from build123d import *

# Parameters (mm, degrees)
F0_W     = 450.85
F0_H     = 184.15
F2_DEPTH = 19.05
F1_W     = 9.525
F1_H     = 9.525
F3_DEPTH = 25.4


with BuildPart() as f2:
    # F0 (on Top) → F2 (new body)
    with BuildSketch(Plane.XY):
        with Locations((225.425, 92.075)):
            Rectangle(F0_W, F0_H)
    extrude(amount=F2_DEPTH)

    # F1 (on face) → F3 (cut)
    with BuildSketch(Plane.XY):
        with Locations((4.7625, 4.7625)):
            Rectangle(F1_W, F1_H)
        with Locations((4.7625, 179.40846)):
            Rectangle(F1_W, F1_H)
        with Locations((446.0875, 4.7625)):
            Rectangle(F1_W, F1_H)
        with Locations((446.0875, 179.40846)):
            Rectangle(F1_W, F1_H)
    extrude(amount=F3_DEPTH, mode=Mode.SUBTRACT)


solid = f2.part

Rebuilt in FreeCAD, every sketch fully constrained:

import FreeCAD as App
import Part
import Sketcher

V = App.Vector
Q = App.Units.Quantity

doc = App.newDocument("Part")
body = doc.addObject("PartDesign::Body", "Body")

# Sketch on XY plane
sketch1 = doc.addObject("Sketcher::SketchObject", "Sketch")
body.addObject(sketch1)
sketch1.AttachmentSupport = (doc.XY_Plane, [""])
sketch1.MapMode = "FlatFace"
sketch1.addGeometry([
    Part.LineSegment(V(0, 184.15, 0), V(0, 0, 0)),
    Part.LineSegment(V(0, 0, 0), V(450.85, 0, 0)),
    Part.LineSegment(V(450.85, 0, 0), V(450.85, 184.15, 0)),
    Part.LineSegment(V(450.85, 184.15, 0), V(0, 184.15, 0)),
], False)
sketch1.addConstraint([
    Sketcher.Constraint("Coincident", 0, 2, 1, 1),
    Sketcher.Constraint("Coincident", 1, 2, 2, 1),
    Sketcher.Constraint("Coincident", 2, 2, 3, 1),
    Sketcher.Constraint("Coincident", 3, 2, 0, 1),
    Sketcher.Constraint("Vertical", 0),
    Sketcher.Constraint("Horizontal", 1),
    Sketcher.Constraint("Vertical", 2),
    Sketcher.Constraint("Horizontal", 3),
    Sketcher.Constraint("Coincident", 0, 2, -1, 1),
    Sketcher.Constraint("DistanceX", 1, 1, 1, 2, Q("17.75 in")),
    Sketcher.Constraint("DistanceY", 0, 2, 0, 1, Q("7.25 in")),
])
pad1 = doc.addObject("PartDesign::Pad", "Pad")
body.addObject(pad1)
pad1.Profile = sketch1
pad1.Length = Q("0.75 in")

# Sketch on XY plane
sketch2 = doc.addObject("Sketcher::SketchObject", "Sketch001")
body.addObject(sketch2)
sketch2.AttachmentSupport = (doc.XY_Plane, [""])
sketch2.MapMode = "FlatFace"
sketch2.addGeometry([
    Part.LineSegment(V(0, 9.525, 0), V(0, 0, 0)),  # 0
    Part.LineSegment(V(0, 0, 0), V(9.525, 0, 0)),  # 1
    Part.LineSegment(V(9.525, 0, 0), V(9.525, 9.525, 0)),  # 2
    Part.LineSegment(V(9.525, 9.525, 0), V(0, 9.525, 0)),  # 3
    Part.LineSegment(V(0, 184.17096, 0), V(0, 174.64596, 0)),  # 4
    Part.LineSegment(V(0, 174.64596, 0), V(9.525, 174.64596, 0)),  # 5
    Part.LineSegment(V(9.525, 174.64596, 0), V(9.525, 184.17096, 0)),  # 6
    Part.LineSegment(V(9.525, 184.17096, 0), V(0, 184.17096, 0)),  # 7
    Part.LineSegment(V(441.325, 9.525, 0), V(441.325, 0, 0)),  # 8
    Part.LineSegment(V(441.325, 0, 0), V(450.85, 0, 0)),  # 9
    Part.LineSegment(V(450.85, 0, 0), V(450.85, 9.525, 0)),  # 10
    Part.LineSegment(V(450.85, 9.525, 0), V(441.325, 9.525, 0)),  # 11
    Part.LineSegment(V(441.325, 184.17096, 0), V(441.325, 174.64596, 0)),  # 12
    Part.LineSegment(V(441.325, 174.64596, 0), V(450.85, 174.64596, 0)),  # 13
    Part.LineSegment(V(450.85, 174.64596, 0), V(450.85, 184.17096, 0)),  # 14
    Part.LineSegment(V(450.85, 184.17096, 0), V(441.325, 184.17096, 0)),  # 15
], False)
sketch2.addConstraint([
    Sketcher.Constraint("Coincident", 0, 2, 1, 1),
    Sketcher.Constraint("Coincident", 1, 2, 2, 1),
    Sketcher.Constraint("Coincident", 2, 2, 3, 1),
    Sketcher.Constraint("Coincident", 3, 2, 0, 1),
    Sketcher.Constraint("Coincident", 4, 2, 5, 1),
    Sketcher.Constraint("Coincident", 5, 2, 6, 1),
    Sketcher.Constraint("Coincident", 6, 2, 7, 1),
    Sketcher.Constraint("Coincident", 7, 2, 4, 1),
    Sketcher.Constraint("Coincident", 8, 2, 9, 1),
    Sketcher.Constraint("Coincident", 9, 2, 10, 1),
    Sketcher.Constraint("Coincident", 10, 2, 11, 1),
    Sketcher.Constraint("Coincident", 11, 2, 8, 1),
    Sketcher.Constraint("Coincident", 12, 2, 13, 1),
    Sketcher.Constraint("Coincident", 13, 2, 14, 1),
    Sketcher.Constraint("Coincident", 14, 2, 15, 1),
    Sketcher.Constraint("Coincident", 15, 2, 12, 1),
    Sketcher.Constraint("Vertical", 0),
    Sketcher.Constraint("Horizontal", 1),
    Sketcher.Constraint("Vertical", 2),
    Sketcher.Constraint("Horizontal", 3),
    Sketcher.Constraint("Vertical", 4),
    Sketcher.Constraint("Horizontal", 5),
    Sketcher.Constraint("Vertical", 6),
    Sketcher.Constraint("Horizontal", 7),
    Sketcher.Constraint("Vertical", 8),
    Sketcher.Constraint("Horizontal", 9),
    Sketcher.Constraint("Vertical", 10),
    Sketcher.Constraint("Horizontal", 11),
    Sketcher.Constraint("Vertical", 12),
    Sketcher.Constraint("Horizontal", 13),
    Sketcher.Constraint("Vertical", 14),
    Sketcher.Constraint("Horizontal", 15),
    Sketcher.Constraint("Coincident", 0, 2, -1, 1),
    Sketcher.Constraint("PointOnObject", 4, 2, -2),
    Sketcher.Constraint("PointOnObject", 8, 2, -1),
    Sketcher.Constraint("Horizontal", 3, 2, 10, 2),
    Sketcher.Constraint("Horizontal", 5, 2, 12, 2),
    Sketcher.Constraint("Horizontal", 7, 2, 14, 2),
    Sketcher.Constraint("Vertical", 2, 2, 5, 2),
    Sketcher.Constraint("Vertical", 11, 2, 12, 2),
    Sketcher.Constraint("Vertical", 10, 2, 13, 2),
    Sketcher.Constraint("Equal", 7, 9),
    Sketcher.Constraint("Equal", 15, 0),
    Sketcher.Constraint("Equal", 2, 4),
    Sketcher.Constraint("DistanceX", 1, 2, 8, 2, Q("17 in")),
    Sketcher.Constraint("DistanceX", 1, 1, 1, 2, Q("0.375 in")),
    Sketcher.Constraint("DistanceY", -1, 1, 4, 2, Q("174.64596 mm")),
])
pocket1 = doc.addObject("PartDesign::Pocket", "Pocket")
body.addObject(pocket1)
pocket1.Profile = sketch2
pocket1.Length = Q("1 in")
pocket1.Reversed = True

doc.recompute()
